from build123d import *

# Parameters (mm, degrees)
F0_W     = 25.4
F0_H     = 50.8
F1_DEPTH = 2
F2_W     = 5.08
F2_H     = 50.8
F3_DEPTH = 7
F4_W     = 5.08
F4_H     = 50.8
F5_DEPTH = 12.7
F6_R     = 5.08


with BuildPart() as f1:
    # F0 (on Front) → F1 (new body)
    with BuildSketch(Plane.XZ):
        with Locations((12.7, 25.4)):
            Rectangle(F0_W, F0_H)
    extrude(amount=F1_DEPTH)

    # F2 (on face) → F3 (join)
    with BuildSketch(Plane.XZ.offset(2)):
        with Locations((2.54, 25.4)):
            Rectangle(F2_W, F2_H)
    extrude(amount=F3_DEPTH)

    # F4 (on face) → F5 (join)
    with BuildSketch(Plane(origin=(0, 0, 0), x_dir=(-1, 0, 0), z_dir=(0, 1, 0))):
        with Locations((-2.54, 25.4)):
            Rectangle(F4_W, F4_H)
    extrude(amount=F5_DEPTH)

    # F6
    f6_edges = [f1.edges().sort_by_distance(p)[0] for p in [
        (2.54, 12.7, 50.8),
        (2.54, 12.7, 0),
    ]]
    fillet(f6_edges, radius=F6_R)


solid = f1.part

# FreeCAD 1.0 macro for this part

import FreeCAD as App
import Part
import Sketcher
Q = App.Units.Quantity


def edges_at(feature, points):
    """Names of the edges that pass closest to the given points."""
    edges = feature.Shape.Edges
    near = lambda p: min(range(len(edges)), key=lambda i: edges[i].distToShape(Part.Vertex(*p))[0])
    return sorted({f"Edge{near(p) + 1}" for p in points})

doc = App.newDocument("Part")
params = doc.addObject("Spreadsheet::Sheet", "Params")
for row, (alias, value) in enumerate([
    ("sketch1_width", "1 in"),
    ("sketch1_height", "2 in"),
    ("pad1_length", "2 mm"),
    ("sketch2_height", "2 in"),
    ("sketch2_width", "0.2 in"),
    ("pad2_length", "7 mm"),
    ("sketch3_height", "2 in"),
    ("sketch3_width", "0.2 in"),
    ("pad3_length", "0.5 in"),
    ("fillet_radius", "0.2 in"),
], start=1):
    params.set(f"A{row}", alias)
    params.set(f"B{row}", "=" + value)
    params.setAlias(f"B{row}", alias)

body = doc.addObject("PartDesign::Body", "Body")

# Sketch on XZ plane
sketch1 = body.newObject("Sketcher::SketchObject", "Sketch")
sketch1.AttachmentSupport = (doc.getObject("XZ_Plane"), [""])
sketch1.MapMode = "FlatFace"
sketch1.addGeometry([
    Part.LineSegment(App.Vector(0, 51, 0), App.Vector(0, 0, 0)),
    Part.LineSegment(App.Vector(0, 0, 0), App.Vector(25, 0, 0)),
    Part.LineSegment(App.Vector(25, 0, 0), App.Vector(25, 51, 0)),
    Part.LineSegment(App.Vector(25, 51, 0), App.Vector(0, 51, 0)),
], False)
sketch1.addConstraint([
    Sketcher.Constraint("Coincident", 0, 2, 1, 1),
    Sketcher.Constraint("Coincident", 1, 2, 2, 1),
    Sketcher.Constraint("Coincident", 2, 2, 3, 1),
    Sketcher.Constraint("Coincident", 3, 2, 0, 1),
    Sketcher.Constraint("Vertical", 0),
    Sketcher.Constraint("Horizontal", 1),
    Sketcher.Constraint("Vertical", 2),
    Sketcher.Constraint("Horizontal", 3),
    Sketcher.Constraint("Coincident", 0, 2, -1, 1),
    Sketcher.Constraint("DistanceX", 1, 1, 1, 2, Q("1 in")),
    Sketcher.Constraint("DistanceY", 0, 2, 0, 1, Q("2 in")),
])
sketch1.setExpression("Constraints[9]", "Params.sketch1_width")
sketch1.setExpression("Constraints[10]", "Params.sketch1_height")
pad1 = body.newObject("PartDesign::Pad", "Pad")
pad1.Profile = sketch1
pad1.setExpression("Length", "Params.pad1_length")

# Sketch on XZ plane
sketch2 = body.newObject("Sketcher::SketchObject", "Sketch001")
sketch2.AttachmentSupport = (doc.getObject("XZ_Plane"), [""])
sketch2.MapMode = "FlatFace"
sketch2.AttachmentOffset = App.Placement(App.Vector(0, 0, 2), App.Rotation())
sketch2.addGeometry([
    Part.LineSegment(App.Vector(0, 51, 0), App.Vector(0, 0, 0)),
    Part.LineSegment(App.Vector(0, 0, 0), App.Vector(5, 0, 0)),
    Part.LineSegment(App.Vector(5, 0, 0), App.Vector(5, 51, 0)),
    Part.LineSegment(App.Vector(5, 51, 0), App.Vector(0, 51, 0)),
], False)
sketch2.addConstraint([
    Sketcher.Constraint("Coincident", 0, 2, 1, 1),
    Sketcher.Constraint("Coincident", 1, 2, 2, 1),
    Sketcher.Constraint("Coincident", 2, 2, 3, 1),
    Sketcher.Constraint("Coincident", 3, 2, 0, 1),
    Sketcher.Constraint("Vertical", 0),
    Sketcher.Constraint("Horizontal", 1),
    Sketcher.Constraint("Vertical", 2),
    Sketcher.Constraint("Horizontal", 3),
    Sketcher.Constraint("Coincident", 0, 2, -1, 1),
    Sketcher.Constraint("DistanceY", 0, 2, 0, 1, Q("2 in")),
    Sketcher.Constraint("DistanceX", 1, 1, 1, 2, Q("0.2 in")),
])
sketch2.setExpression("Constraints[9]", "Params.sketch2_height")
sketch2.setExpression("Constraints[10]", "Params.sketch2_width")
pad2 = body.newObject("PartDesign::Pad", "Pad001")
pad2.Profile = sketch2
pad2.setExpression("Length", "Params.pad2_length")

# Sketch on XZ plane
sketch3 = body.newObject("Sketcher::SketchObject", "Sketch002")
sketch3.AttachmentSupport = (doc.getObject("XZ_Plane"), [""])
sketch3.MapMode = "FlatFace"
sketch3.addGeometry([
    Part.LineSegment(App.Vector(5, 51, 0), App.Vector(5, 0, 0)),
    Part.LineSegment(App.Vector(5, 0, 0), App.Vector(0, 0, 0)),
    Part.LineSegment(App.Vector(0, 0, 0), App.Vector(0, 51, 0)),
    Part.LineSegment(App.Vector(0, 51, 0), App.Vector(5, 51, 0)),
], False)
sketch3.addConstraint([
    Sketcher.Constraint("Coincident", 0, 2, 1, 1),
    Sketcher.Constraint("Coincident", 1, 2, 2, 1),
    Sketcher.Constraint("Coincident", 2, 2, 3, 1),
    Sketcher.Constraint("Coincident", 3, 2, 0, 1),
    Sketcher.Constraint("Vertical", 0),
    Sketcher.Constraint("Horizontal", 1),
    Sketcher.Constraint("Vertical", 2),
    Sketcher.Constraint("Horizontal", 3),
    Sketcher.Constraint("Coincident", 1, 2, -1, 1),
    Sketcher.Constraint("DistanceY", 0, 2, 0, 1, Q("2 in")),
    Sketcher.Constraint("DistanceX", 1, 2, 1, 1, Q("0.2 in")),
])
sketch3.setExpression("Constraints[9]", "Params.sketch3_height")
sketch3.setExpression("Constraints[10]", "Params.sketch3_width")
pad3 = body.newObject("PartDesign::Pad", "Pad002")
pad3.Profile = sketch3
pad3.setExpression("Length", "Params.pad3_length")
pad3.Reversed = True
doc.recompute()

fillet = body.newObject("PartDesign::Fillet", "Fillet")
fillet.Base = (pad3, edges_at(pad3, [(2.54, 12.7, 50.8), (2.54, 12.7, 0)]))
fillet.setExpression("Radius", "Params.fillet_radius")

doc.recompute()
